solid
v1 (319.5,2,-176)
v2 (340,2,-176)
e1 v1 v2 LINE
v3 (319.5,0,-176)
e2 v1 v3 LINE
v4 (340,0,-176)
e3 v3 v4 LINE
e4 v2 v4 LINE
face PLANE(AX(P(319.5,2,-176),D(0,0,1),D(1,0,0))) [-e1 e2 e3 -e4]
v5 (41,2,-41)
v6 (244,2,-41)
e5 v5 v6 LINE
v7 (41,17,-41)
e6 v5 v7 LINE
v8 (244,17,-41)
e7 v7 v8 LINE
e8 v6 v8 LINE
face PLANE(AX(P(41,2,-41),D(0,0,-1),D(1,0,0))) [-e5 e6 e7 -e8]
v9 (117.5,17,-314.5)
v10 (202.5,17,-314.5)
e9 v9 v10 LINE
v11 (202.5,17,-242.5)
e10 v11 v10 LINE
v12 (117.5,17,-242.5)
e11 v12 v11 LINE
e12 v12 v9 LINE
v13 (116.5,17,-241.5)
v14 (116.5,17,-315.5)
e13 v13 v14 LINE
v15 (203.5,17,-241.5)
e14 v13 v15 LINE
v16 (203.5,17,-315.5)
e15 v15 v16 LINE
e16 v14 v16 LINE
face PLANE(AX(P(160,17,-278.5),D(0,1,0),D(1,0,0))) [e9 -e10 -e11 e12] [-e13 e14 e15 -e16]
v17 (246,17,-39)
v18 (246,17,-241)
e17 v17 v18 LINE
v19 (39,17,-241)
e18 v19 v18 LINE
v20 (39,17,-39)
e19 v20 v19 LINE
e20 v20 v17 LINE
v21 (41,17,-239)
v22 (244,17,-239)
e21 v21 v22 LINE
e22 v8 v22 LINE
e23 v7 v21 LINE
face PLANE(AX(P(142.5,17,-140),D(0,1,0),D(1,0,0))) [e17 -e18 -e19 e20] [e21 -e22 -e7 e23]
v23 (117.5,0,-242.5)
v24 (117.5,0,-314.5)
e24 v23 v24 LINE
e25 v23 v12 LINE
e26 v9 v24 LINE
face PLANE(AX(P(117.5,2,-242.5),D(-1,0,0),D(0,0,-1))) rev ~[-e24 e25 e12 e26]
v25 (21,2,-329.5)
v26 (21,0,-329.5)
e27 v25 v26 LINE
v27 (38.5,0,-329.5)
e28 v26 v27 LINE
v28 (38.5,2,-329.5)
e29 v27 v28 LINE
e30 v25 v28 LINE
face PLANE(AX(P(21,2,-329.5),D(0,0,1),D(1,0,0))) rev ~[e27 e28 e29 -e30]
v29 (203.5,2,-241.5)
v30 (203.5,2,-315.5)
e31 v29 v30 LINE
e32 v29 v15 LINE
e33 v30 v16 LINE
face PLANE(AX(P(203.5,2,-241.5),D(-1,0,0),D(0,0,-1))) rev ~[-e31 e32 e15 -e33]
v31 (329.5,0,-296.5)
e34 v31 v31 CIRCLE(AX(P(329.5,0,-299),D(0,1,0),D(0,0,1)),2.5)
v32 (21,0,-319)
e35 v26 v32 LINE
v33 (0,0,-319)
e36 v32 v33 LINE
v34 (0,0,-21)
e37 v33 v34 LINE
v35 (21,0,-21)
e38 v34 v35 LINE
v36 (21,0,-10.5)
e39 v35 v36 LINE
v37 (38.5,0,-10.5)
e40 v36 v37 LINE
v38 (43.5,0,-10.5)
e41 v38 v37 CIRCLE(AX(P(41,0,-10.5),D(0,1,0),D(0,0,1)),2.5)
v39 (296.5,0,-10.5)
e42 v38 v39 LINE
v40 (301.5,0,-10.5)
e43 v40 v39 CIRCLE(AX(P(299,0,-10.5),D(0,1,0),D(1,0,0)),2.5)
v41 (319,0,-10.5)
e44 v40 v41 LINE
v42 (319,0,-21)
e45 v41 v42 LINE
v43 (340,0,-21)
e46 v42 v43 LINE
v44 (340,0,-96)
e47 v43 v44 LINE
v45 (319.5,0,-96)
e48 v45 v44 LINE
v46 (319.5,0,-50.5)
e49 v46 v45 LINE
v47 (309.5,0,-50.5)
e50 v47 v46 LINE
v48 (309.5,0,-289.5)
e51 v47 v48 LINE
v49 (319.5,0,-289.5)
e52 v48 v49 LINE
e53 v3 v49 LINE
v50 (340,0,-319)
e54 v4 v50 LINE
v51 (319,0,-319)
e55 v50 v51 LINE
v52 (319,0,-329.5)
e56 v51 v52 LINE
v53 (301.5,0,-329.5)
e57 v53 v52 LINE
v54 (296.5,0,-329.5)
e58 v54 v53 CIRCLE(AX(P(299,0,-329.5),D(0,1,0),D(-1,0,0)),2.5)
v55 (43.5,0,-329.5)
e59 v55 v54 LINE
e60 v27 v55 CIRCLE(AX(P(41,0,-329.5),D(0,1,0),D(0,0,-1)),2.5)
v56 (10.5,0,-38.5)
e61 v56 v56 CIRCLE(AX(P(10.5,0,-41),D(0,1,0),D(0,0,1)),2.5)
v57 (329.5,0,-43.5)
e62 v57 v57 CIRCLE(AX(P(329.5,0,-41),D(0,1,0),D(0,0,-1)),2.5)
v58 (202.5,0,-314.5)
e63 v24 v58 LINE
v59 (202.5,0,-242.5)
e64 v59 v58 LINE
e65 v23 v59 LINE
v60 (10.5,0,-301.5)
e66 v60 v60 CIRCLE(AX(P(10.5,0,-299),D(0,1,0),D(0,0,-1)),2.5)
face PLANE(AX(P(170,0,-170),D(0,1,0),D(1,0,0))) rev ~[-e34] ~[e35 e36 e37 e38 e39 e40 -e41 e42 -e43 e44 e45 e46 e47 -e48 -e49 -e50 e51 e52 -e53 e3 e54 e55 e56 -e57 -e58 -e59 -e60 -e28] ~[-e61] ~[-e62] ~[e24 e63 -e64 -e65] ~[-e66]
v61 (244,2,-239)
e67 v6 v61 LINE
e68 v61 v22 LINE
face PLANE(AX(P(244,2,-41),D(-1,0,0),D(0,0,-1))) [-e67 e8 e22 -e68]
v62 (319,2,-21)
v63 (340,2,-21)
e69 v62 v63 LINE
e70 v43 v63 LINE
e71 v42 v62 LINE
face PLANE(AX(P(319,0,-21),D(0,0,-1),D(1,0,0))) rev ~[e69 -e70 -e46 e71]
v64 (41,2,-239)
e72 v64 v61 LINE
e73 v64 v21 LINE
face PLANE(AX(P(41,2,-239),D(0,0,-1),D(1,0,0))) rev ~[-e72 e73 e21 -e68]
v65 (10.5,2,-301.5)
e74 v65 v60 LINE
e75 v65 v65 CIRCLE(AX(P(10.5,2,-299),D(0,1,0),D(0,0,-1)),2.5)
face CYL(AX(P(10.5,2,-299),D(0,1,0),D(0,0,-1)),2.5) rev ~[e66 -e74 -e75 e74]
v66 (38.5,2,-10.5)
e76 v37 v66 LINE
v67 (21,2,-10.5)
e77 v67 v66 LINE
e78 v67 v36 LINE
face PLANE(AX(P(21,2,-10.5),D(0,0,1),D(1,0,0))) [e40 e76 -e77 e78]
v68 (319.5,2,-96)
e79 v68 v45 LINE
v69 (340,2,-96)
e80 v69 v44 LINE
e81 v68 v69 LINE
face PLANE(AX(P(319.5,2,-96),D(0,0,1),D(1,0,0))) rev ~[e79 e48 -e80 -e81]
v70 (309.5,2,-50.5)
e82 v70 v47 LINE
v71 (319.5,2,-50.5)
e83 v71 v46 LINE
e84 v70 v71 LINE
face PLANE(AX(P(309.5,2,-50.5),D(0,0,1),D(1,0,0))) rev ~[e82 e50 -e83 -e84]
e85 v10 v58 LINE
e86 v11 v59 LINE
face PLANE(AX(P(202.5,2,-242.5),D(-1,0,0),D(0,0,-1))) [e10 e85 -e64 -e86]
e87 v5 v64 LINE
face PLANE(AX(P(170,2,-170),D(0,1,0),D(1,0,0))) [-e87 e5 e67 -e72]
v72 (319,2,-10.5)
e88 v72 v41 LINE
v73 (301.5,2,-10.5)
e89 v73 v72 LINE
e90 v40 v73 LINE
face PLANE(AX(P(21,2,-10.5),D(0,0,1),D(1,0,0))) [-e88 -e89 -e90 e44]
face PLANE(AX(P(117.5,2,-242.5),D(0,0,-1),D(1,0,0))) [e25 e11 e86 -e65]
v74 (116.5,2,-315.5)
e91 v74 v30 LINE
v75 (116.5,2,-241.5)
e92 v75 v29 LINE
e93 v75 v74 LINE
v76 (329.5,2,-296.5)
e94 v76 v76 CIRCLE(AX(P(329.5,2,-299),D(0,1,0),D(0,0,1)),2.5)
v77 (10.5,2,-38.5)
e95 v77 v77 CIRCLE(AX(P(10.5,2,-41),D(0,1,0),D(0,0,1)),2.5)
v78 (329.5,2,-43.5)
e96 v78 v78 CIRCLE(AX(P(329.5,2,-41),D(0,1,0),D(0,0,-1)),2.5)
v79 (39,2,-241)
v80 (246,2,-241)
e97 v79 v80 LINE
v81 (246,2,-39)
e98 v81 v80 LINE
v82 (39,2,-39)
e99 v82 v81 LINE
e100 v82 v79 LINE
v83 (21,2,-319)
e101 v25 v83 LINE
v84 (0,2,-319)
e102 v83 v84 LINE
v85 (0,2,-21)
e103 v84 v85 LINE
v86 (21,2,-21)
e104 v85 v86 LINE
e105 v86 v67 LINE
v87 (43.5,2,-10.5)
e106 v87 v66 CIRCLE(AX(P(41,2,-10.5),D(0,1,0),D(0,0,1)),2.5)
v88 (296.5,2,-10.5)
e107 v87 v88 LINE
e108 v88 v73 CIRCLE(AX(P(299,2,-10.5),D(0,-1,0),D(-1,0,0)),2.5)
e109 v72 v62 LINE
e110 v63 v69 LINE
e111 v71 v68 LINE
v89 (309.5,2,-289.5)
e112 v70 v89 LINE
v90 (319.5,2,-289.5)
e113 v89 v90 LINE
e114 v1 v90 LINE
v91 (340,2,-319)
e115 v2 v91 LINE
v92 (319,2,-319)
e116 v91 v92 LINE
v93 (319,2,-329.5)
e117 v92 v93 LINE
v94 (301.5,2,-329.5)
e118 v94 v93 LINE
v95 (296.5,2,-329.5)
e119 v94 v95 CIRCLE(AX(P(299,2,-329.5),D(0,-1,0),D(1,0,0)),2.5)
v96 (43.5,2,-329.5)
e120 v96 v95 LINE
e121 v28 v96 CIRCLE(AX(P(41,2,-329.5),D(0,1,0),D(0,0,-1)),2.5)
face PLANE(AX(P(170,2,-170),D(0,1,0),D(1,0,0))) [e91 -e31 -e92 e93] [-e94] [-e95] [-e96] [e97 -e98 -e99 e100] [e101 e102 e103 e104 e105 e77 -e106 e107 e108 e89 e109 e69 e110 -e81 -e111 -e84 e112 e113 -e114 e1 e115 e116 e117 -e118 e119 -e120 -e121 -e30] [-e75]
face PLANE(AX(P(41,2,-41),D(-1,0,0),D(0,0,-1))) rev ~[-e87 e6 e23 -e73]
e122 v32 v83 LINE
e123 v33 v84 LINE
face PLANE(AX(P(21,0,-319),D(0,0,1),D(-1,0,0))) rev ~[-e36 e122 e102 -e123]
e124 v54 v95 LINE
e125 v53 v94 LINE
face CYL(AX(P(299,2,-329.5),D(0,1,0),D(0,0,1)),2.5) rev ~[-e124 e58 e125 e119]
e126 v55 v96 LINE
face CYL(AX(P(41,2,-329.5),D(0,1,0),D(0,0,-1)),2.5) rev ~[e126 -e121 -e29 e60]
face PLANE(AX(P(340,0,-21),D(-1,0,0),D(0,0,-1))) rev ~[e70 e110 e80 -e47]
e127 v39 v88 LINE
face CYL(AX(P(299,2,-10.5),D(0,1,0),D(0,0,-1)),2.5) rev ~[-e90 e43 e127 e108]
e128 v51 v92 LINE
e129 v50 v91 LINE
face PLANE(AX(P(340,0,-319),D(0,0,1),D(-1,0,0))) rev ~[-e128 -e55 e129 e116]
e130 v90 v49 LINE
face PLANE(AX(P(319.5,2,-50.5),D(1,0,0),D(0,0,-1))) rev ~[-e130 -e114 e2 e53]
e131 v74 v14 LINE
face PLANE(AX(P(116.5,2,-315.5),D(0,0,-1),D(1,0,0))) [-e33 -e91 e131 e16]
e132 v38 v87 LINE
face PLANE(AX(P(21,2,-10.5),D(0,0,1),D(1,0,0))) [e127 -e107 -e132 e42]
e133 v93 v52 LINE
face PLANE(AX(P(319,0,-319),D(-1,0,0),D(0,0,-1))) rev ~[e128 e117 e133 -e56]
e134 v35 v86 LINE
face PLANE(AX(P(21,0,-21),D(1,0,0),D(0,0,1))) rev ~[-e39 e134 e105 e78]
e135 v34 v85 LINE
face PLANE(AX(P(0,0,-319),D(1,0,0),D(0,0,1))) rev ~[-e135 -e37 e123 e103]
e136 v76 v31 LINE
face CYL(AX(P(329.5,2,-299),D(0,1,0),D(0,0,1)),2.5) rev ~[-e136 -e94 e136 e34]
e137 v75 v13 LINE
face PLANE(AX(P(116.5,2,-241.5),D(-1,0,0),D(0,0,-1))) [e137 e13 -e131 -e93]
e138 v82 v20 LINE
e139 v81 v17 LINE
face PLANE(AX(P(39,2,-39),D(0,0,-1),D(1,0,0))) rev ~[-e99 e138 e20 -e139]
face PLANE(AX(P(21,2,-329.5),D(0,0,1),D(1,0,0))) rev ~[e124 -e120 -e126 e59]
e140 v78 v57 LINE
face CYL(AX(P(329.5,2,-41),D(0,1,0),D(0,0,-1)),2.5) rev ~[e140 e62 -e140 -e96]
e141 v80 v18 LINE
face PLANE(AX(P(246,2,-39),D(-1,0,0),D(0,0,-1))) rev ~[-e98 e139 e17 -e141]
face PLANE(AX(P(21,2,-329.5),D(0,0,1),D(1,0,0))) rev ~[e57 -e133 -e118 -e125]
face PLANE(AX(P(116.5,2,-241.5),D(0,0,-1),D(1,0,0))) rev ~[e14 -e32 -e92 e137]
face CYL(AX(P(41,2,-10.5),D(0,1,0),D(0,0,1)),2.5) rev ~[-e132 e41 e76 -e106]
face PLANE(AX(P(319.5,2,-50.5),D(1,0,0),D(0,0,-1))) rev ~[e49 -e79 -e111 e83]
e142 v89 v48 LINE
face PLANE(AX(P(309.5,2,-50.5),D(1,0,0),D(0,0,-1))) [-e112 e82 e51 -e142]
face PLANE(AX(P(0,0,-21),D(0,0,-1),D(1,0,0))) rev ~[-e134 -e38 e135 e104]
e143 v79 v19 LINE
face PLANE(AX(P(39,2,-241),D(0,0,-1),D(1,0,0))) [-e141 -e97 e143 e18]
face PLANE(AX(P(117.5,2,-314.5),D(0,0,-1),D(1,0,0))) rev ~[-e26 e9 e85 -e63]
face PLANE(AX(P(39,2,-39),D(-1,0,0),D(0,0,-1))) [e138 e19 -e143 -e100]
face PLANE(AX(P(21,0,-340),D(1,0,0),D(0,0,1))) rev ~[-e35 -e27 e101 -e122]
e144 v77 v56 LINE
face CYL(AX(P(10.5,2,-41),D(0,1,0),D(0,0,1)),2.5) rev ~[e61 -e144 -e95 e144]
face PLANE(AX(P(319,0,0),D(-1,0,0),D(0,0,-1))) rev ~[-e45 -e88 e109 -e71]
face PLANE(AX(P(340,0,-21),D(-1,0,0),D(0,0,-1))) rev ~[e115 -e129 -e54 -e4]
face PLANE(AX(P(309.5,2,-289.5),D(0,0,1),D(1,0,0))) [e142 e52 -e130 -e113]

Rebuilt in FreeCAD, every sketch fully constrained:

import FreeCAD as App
import Part
import Sketcher


def add_polygon(sketch, points):
    """Adds a closed chain of lines whose ends are joined by coincident constraints."""
    first, n = sketch.GeometryCount, len(points)
    for a, b in zip(points, points[1:] + points[:1]):
        sketch.addGeometry(Part.LineSegment(App.Vector(*a, 0), App.Vector(*b, 0)), False)
    for i in range(n):
        sketch.addConstraint(Sketcher.Constraint("Coincident", first + i, 2, first + (i + 1) % n, 1))

doc = App.newDocument("Part")
body = doc.addObject("PartDesign::Body", "Body")

sketch1 = body.newObject("Sketcher::SketchObject", "Sketch")
sketch1.AttachmentSupport = (doc.getObject("XZ_Plane"), [""])
sketch1.MapMode = "FlatFace"
add_polygon(sketch1, [(21, -21), (21, 0), (319, 0), (319, -21), (340, -21), (340, -319), (319, -319), (319, -340), (21, -340), (21, -319), (0, -319), (0, -21)])
sketch1.addConstraint(Sketcher.Constraint("Vertical", 0))
sketch1.addConstraint(Sketcher.Constraint("Horizontal", 1))
sketch1.addConstraint(Sketcher.Constraint("Vertical", 2))
sketch1.addConstraint(Sketcher.Constraint("Horizontal", 3))
sketch1.addConstraint(Sketcher.Constraint("Vertical", 4))
sketch1.addConstraint(Sketcher.Constraint("Horizontal", 5))
sketch1.addConstraint(Sketcher.Constraint("Vertical", 6))
sketch1.addConstraint(Sketcher.Constraint("Horizontal", 7))
sketch1.addConstraint(Sketcher.Constraint("Vertical", 8))
sketch1.addConstraint(Sketcher.Constraint("Horizontal", 9))
sketch1.addConstraint(Sketcher.Constraint("Vertical", 10))
sketch1.addConstraint(Sketcher.Constraint("Horizontal", 11))
sketch1.addConstraint(Sketcher.Constraint("PointOnObject", 0, 2, -1))
sketch1.addConstraint(Sketcher.Constraint("PointOnObject", 9, 2, -2))
sketch1.addConstraint(Sketcher.Constraint("Horizontal", 5, 2, 8, 2))
sketch1.addConstraint(Sketcher.Constraint("Horizontal", 3, 2, 10, 2))
sketch1.addConstraint(Sketcher.Constraint("Vertical", 2, 2, 5, 2))
sketch1.addConstraint(Sketcher.Constraint("Vertical", 0, 2, 7, 2))
sketch1.addConstraint(Sketcher.Constraint("Equal", 5, 9))
sketch1.addConstraint(Sketcher.Constraint("Equal", 11, 0))
sketch1.addConstraint(Sketcher.Constraint("Equal", 7, 4))
sketch1.addConstraint(Sketcher.Constraint("Equal", 2, 6))
sketch1.addConstraint(Sketcher.Constraint("DistanceX", 1, 1, 1, 2, 298.0))
sketch1.addConstraint(Sketcher.Constraint("DistanceX", 3, 1, 3, 2, 21.0))
pad1 = body.newObject("PartDesign::Pad", "Pad")
pad1.Profile = sketch1
pad1.Length = 2
pad1.Reversed = True

sketch2 = body.newObject("Sketcher::SketchObject", "Sketch001")
sketch2.AttachmentSupport = (doc.getObject("XZ_Plane"), [""])
sketch2.MapMode = "FlatFace"
sketch2.AttachmentOffset = App.Placement(App.Vector(0, 0, -2), App.Rotation())
add_polygon(sketch2, [(310, -290), (310, -50), (320, -50), (320, -290)])
sketch2.addConstraint(Sketcher.Constraint("Vertical", 0))
sketch2.addConstraint(Sketcher.Constraint("Horizontal", 1))
sketch2.addConstraint(Sketcher.Constraint("Vertical", 2))
sketch2.addConstraint(Sketcher.Constraint("Horizontal", 3))
sketch2.addConstraint(Sketcher.Constraint("DistanceX", 1, 1, 1, 2, 10.0))
sketch2.addConstraint(Sketcher.Constraint("DistanceY", 0, 1, 0, 2, 239.0))
sketch2.addConstraint(Sketcher.Constraint("DistanceX", -1, 1, 0, 2, 309.5))
sketch2.addConstraint(Sketcher.Constraint("DistanceY", 0, 2, -1, 1, 50.5))
pocket1 = body.newObject("PartDesign::Pocket", "Pocket")
pocket1.Profile = sketch2
pocket1.Type = "ThroughAll"
pocket1.Reversed = True

sketch3 = body.newObject("Sketcher::SketchObject", "Sketch002")
sketch3.AttachmentSupport = (doc.getObject("XZ_Plane"), [""])
sketch3.MapMode = "FlatFace"
sketch3.AttachmentOffset = App.Placement(App.Vector(0, 0, -2), App.Rotation())
sketch3.addGeometry(Part.Circle(App.Vector(10.5, -41, 0), App.Vector(0, 0, 1), 2.5), False)
sketch3.addGeometry(Part.Circle(App.Vector(10.5, -299, 0), App.Vector(0, 0, 1), 2.5), False)
sketch3.addGeometry(Part.Circle(App.Vector(329.5, -299, 0), App.Vector(0, 0, 1), 2.5), False)
sketch3.addGeometry(Part.Circle(App.Vector(329.5, -41, 0), App.Vector(0, 0, 1), 2.5), False)
sketch3.addGeometry(Part.Circle(App.Vector(41, -10.5, 0), App.Vector(0, 0, 1), 2.5), False)
sketch3.addGeometry(Part.Circle(App.Vector(299, -10.5, 0), App.Vector(0, 0, 1), 2.5), False)
sketch3.addGeometry(Part.Circle(App.Vector(299, -329.5, 0), App.Vector(0, 0, 1), 2.5), False)
sketch3.addGeometry(Part.Circle(App.Vector(41, -329.5, 0), App.Vector(0, 0, 1), 2.5), False)
sketch3.addConstraint(Sketcher.Constraint("Equal", 0, 1))
sketch3.addConstraint(Sketcher.Constraint("Equal", 1, 2))
sketch3.addConstraint(Sketcher.Constraint("Equal", 2, 3))
sketch3.addConstraint(Sketcher.Constraint("Equal", 3, 4))
sketch3.addConstraint(Sketcher.Constraint("Equal", 4, 5))
sketch3.addConstraint(Sketcher.Constraint("Equal", 5, 6))
sketch3.addConstraint(Sketcher.Constraint("Equal", 6, 7))
sketch3.addConstraint(Sketcher.Constraint("Horizontal", 1, 3, 2, 3))
sketch3.addConstraint(Sketcher.Constraint("Horizontal", 0, 3, 3, 3))
sketch3.addConstraint(Sketcher.Constraint("Horizontal", 4, 3, 5, 3))
sketch3.addConstraint(Sketcher.Constraint("Horizontal", 6, 3, 7, 3))
sketch3.addConstraint(Sketcher.Constraint("Vertical", 0, 3, 1, 3))
sketch3.addConstraint(Sketcher.Constraint("Vertical", 2, 3, 3, 3))
sketch3.addConstraint(Sketcher.Constraint("Vertical", 5, 3, 6, 3))
sketch3.addConstraint(Sketcher.Constraint("Vertical", 4, 3, 7, 3))
sketch3.addConstraint(Sketcher.Constraint("Diameter", 0, 5.0))
sketch3.addConstraint(Sketcher.Constraint("DistanceY", 0, 3, -1, 1, 41.0))
sketch3.addConstraint(Sketcher.Constraint("DistanceY", 1, 3, -1, 1, 299.0))
sketch3.addConstraint(Sketcher.Constraint("DistanceX", -1, 1, 4, 3, 41.0))
sketch3.addConstraint(Sketcher.Constraint("DistanceX", -1, 1, 5, 3, 299.0))
sketch3.addConstraint(Sketcher.Constraint("DistanceX", 1, 3, 2, 3, 319.0))
sketch3.addConstraint(Sketcher.Constraint("DistanceY", 6, 3, 5, 3, 319.0))
sketch3.addConstraint(Sketcher.Constraint("DistanceX", -1, 1, 0, 3, 10.5))
sketch3.addConstraint(Sketcher.Constraint("DistanceY", 4, 3, -1, 1, 10.5))
pocket2 = body.newObject("PartDesign::Pocket", "Pocket001")
pocket2.Profile = sketch3
pocket2.Type = "ThroughAll"
pocket2.Reversed = True

sketch4 = body.newObject("Sketcher::SketchObject", "Sketch003")
sketch4.AttachmentSupport = (doc.getObject("XZ_Plane"), [""])
sketch4.MapMode = "FlatFace"
sketch4.AttachmentOffset = App.Placement(App.Vector(0, 0, -2), App.Rotation())
add_polygon(sketch4, [(39, -241), (39, -39), (246, -39), (246, -241)])
add_polygon(sketch4, [(244, -41), (41, -41), (41, -239), (244, -239)])
sketch4.addConstraint(Sketcher.Constraint("Vertical", 0))
sketch4.addConstraint(Sketcher.Constraint("Horizontal", 1))
sketch4.addConstraint(Sketcher.Constraint("Vertical", 2))
sketch4.addConstraint(Sketcher.Constraint("Horizontal", 3))
sketch4.addConstraint(Sketcher.Constraint("Horizontal", 4))
sketch4.addConstraint(Sketcher.Constraint("Vertical", 5))
sketch4.addConstraint(Sketcher.Constraint("Horizontal", 6))
sketch4.addConstraint(Sketcher.Constraint("Vertical", 7))
sketch4.addConstraint(Sketcher.Constraint("DistanceX", 1, 1, 1, 2, 207.0))
sketch4.addConstraint(Sketcher.Constraint("DistanceX", 4, 2, 4, 1, 203.0))
sketch4.addConstraint(Sketcher.Constraint("DistanceY", 0, 1, 0, 2, 202.0))
sketch4.addConstraint(Sketcher.Constraint("DistanceY", 5, 2, 5, 1, 198.0))
sketch4.addConstraint(Sketcher.Constraint("DistanceX", -1, 1, 0, 2, 39.0))
sketch4.addConstraint(Sketcher.Constraint("DistanceY", 0, 2, -1, 1, 39.0))
sketch4.addConstraint(Sketcher.Constraint("DistanceX", -1, 1, 4, 2, 41.0))
sketch4.addConstraint(Sketcher.Constraint("DistanceY", 4, 2, -1, 1, 41.0))
pad2 = body.newObject("PartDesign::Pad", "Pad001")
pad2.Profile = sketch4
pad2.Length = 15
pad2.Reversed = True

sketch5 = body.newObject("Sketcher::SketchObject", "Sketch004")
sketch5.AttachmentSupport = (doc.getObject("XZ_Plane"), [""])
sketch5.MapMode = "FlatFace"
sketch5.AttachmentOffset = App.Placement(App.Vector(0, 0, -2), App.Rotation())
add_polygon(sketch5, [(118, -314), (118, -242), (202, -242), (202, -314)])
sketch5.addConstraint(Sketcher.Constraint("Vertical", 0))
sketch5.addConstraint(Sketcher.Constraint("Horizontal", 1))
sketch5.addConstraint(Sketcher.Constraint("Vertical", 2))
sketch5.addConstraint(Sketcher.Constraint("Horizontal", 3))
sketch5.addConstraint(Sketcher.Constraint("DistanceX", 1, 1, 1, 2, 85.0))
sketch5.addConstraint(Sketcher.Constraint("DistanceY", 0, 1, 0, 2, 72.0))
sketch5.addConstraint(Sketcher.Constraint("DistanceX", -1, 1, 0, 2, 117.5))
sketch5.addConstraint(Sketcher.Constraint("DistanceY", 0, 2, -1, 1, 242.5))
pocket3 = body.newObject("PartDesign::Pocket", "Pocket002")
pocket3.Profile = sketch5
pocket3.Type = "ThroughAll"
pocket3.Reversed = True

sketch6 = body.newObject("Sketcher::SketchObject", "Sketch005")
sketch6.AttachmentSupport = (doc.getObject("XZ_Plane"), [""])
sketch6.MapMode = "FlatFace"
sketch6.AttachmentOffset = App.Placement(App.Vector(0, 0, -2), App.Rotation())
add_polygon(sketch6, [(320, -176), (320, -96), (340, -96), (340, -176)])
add_polygon(sketch6, [(21, -10), (21, 0), (319, 0), (319, -10)])
add_polygon(sketch6, [(21, -340), (21, -330), (319, -330), (319, -340)])
sketch6.addConstraint(Sketcher.Constraint("Vertical", 0))
sketch6.addConstraint(Sketcher.Constraint("Horizontal", 1))
sketch6.addConstraint(Sketcher.Constraint("Vertical", 2))
sketch6.addConstraint(Sketcher.Constraint("Horizontal", 3))
sketch6.addConstraint(Sketcher.Constraint("Vertical", 4))
sketch6.addConstraint(Sketcher.Constraint("Horizontal", 5))
sketch6.addConstraint(Sketcher.Constraint("Vertical", 6))
sketch6.addConstraint(Sketcher.Constraint("Horizontal", 7))
sketch6.addConstraint(Sketcher.Constraint("Vertical", 8))
sketch6.addConstraint(Sketcher.Constraint("Horizontal", 9))
sketch6.addConstraint(Sketcher.Constraint("Vertical", 10))
sketch6.addConstraint(Sketcher.Constraint("Horizontal", 11))
sketch6.addConstraint(Sketcher.Constraint("PointOnObject", 4, 2, -1))
sketch6.addConstraint(Sketcher.Constraint("Vertical", 7, 2, 8, 2))
sketch6.addConstraint(Sketcher.Constraint("Vertical", 6, 2, 9, 2))
sketch6.addConstraint(Sketcher.Constraint("Equal", 6, 8))
sketch6.addConstraint(Sketcher.Constraint("DistanceX", 5, 1, 5, 2, 298.0))
sketch6.addConstraint(Sketcher.Constraint("DistanceY", 0, 1, 0, 2, 80.0))
sketch6.addConstraint(Sketcher.Constraint("DistanceX", 1, 1, 1, 2, 20.5))
sketch6.addConstraint(Sketcher.Constraint("DistanceY", 4, 1, 4, 2, 10.5))
sketch6.addConstraint(Sketcher.Constraint("DistanceY", 0, 2, -1, 1, 96.0))
sketch6.addConstraint(Sketcher.Constraint("DistanceX", -1, 1, 1, 2, 340.0))
sketch6.addConstraint(Sketcher.Constraint("DistanceX", -1, 1, 4, 2, 21.0))
sketch6.addConstraint(Sketcher.Constraint("DistanceY", 10, 2, -1, 1, 340.0))
pocket4 = body.newObject("PartDesign::Pocket", "Pocket003")
pocket4.Profile = sketch6
pocket4.Length = 10
pocket4.Reversed = True

sketch7 = body.newObject("Sketcher::SketchObject", "Sketch006")
sketch7.AttachmentSupport = (doc.getObject("XZ_Plane"), [""])
sketch7.MapMode = "FlatFace"
sketch7.AttachmentOffset = App.Placement(App.Vector(0, 0, -2), App.Rotation())
add_polygon(sketch7, [(116, -316), (116, -242), (204, -242), (204, -316)])
add_polygon(sketch7, [(202, -242), (118, -242), (118, -314), (202, -314)])
sketch7.addConstraint(Sketcher.Constraint("Vertical", 0))
sketch7.addConstraint(Sketcher.Constraint("Horizontal", 1))
sketch7.addConstraint(Sketcher.Constraint("Vertical", 2))
sketch7.addConstraint(Sketcher.Constraint("Horizontal", 3))
sketch7.addConstraint(Sketcher.Constraint("Horizontal", 4))
sketch7.addConstraint(Sketcher.Constraint("Vertical", 5))
sketch7.addConstraint(Sketcher.Constraint("Horizontal", 6))
sketch7.addConstraint(Sketcher.Constraint("Vertical", 7))
sketch7.addConstraint(Sketcher.Constraint("DistanceX", 1, 1, 1, 2, 87.0))
sketch7.addConstraint(Sketcher.Constraint("DistanceX", 4, 2, 4, 1, 85.0))
sketch7.addConstraint(Sketcher.Constraint("DistanceY", 0, 1, 0, 2, 74.0))
sketch7.addConstraint(Sketcher.Constraint("DistanceY", 5, 2, 5, 1, 72.0))
sketch7.addConstraint(Sketcher.Constraint("DistanceX", 0, 2, 4, 2, 1.0))
sketch7.addConstraint(Sketcher.Constraint("DistanceY", 4, 2, 0, 2, 1.0))
sketch7.addConstraint(Sketcher.Constraint("DistanceX", -1, 1, 0, 2, 116.5))
sketch7.addConstraint(Sketcher.Constraint("DistanceY", 0, 2, -1, 1, 241.5))
pad3 = body.newObject("PartDesign::Pad", "Pad002")
pad3.Profile = sketch7
pad3.Length = 15
pad3.Reversed = True

doc.recompute()
